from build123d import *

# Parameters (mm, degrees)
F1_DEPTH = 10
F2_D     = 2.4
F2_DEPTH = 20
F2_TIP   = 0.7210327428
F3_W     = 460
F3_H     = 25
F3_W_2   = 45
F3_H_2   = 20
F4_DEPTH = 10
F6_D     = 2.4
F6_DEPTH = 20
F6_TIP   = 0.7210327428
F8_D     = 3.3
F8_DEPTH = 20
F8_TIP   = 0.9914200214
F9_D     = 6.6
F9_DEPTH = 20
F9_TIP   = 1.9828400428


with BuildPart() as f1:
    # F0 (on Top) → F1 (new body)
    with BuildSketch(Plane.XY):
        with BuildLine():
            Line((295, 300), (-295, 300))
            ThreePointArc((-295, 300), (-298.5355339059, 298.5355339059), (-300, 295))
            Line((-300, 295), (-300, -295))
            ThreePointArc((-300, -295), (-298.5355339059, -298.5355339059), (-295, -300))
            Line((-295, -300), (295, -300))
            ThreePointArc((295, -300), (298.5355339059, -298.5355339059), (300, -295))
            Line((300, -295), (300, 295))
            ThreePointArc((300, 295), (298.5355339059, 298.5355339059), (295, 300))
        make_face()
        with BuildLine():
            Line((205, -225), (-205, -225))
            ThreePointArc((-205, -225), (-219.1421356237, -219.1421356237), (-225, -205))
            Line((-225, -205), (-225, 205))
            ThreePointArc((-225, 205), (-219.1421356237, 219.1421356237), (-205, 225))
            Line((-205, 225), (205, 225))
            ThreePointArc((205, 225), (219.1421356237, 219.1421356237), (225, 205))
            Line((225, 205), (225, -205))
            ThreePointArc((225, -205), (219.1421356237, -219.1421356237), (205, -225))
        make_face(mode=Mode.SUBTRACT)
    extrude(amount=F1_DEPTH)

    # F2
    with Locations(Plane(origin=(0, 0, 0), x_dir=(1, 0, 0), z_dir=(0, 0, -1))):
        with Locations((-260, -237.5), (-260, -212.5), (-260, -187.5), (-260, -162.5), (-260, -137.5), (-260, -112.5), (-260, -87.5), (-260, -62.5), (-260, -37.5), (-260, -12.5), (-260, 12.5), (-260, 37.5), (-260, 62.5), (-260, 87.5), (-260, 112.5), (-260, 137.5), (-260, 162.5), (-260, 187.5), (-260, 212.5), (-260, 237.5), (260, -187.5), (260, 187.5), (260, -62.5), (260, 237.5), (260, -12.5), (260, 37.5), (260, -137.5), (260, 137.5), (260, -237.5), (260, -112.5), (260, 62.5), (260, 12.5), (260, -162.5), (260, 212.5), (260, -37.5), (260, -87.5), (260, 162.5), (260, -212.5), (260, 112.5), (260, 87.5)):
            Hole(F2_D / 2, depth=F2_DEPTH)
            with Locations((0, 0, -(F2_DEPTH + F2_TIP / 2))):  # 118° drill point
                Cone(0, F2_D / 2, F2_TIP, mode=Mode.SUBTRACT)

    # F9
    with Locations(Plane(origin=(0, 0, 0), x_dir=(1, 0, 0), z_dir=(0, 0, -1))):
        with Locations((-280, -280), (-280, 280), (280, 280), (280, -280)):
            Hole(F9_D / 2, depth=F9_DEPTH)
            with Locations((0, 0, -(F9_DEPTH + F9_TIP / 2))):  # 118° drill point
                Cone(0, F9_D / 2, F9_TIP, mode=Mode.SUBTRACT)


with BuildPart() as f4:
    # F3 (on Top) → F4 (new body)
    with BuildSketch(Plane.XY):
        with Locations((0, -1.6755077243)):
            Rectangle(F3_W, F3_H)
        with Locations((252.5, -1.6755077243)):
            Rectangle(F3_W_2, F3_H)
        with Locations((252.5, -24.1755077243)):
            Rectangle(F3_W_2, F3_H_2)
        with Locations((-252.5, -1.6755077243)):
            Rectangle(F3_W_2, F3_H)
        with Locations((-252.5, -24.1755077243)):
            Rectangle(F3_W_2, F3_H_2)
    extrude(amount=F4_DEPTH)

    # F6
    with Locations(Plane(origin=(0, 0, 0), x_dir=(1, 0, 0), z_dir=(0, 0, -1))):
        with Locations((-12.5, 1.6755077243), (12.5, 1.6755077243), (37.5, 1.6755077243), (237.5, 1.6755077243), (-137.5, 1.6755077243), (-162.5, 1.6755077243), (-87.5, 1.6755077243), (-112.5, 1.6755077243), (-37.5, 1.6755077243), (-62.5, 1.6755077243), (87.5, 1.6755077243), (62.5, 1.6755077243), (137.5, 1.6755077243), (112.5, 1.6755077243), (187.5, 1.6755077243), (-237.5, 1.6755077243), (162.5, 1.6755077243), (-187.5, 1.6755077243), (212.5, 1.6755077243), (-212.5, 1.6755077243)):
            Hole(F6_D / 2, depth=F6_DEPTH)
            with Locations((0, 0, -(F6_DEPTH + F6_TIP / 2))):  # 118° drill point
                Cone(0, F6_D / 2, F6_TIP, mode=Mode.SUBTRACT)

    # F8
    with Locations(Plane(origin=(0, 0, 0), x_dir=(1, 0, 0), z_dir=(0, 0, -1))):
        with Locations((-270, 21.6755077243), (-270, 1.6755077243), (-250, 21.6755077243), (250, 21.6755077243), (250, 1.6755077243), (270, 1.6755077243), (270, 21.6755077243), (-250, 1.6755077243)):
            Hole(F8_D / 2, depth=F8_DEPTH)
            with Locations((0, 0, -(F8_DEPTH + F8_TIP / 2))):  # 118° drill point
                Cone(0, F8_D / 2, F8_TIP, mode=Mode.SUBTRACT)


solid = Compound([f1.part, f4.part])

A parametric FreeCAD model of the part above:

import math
import FreeCAD as App
import Part
import Sketcher
Q = App.Units.Quantity

doc = App.newDocument("Part")
params = doc.addObject("Spreadsheet::Sheet", "Params")
for row, (alias, value) in enumerate([
    ("sketch1_radius", "5 mm"),
    ("sketch1_radius2", "20 mm"),
    ("sketch1_width", "590 mm"),
    ("sketch1_width2", "410 mm"),
    ("pad1_length", "10 mm"),
    ("sketch2_diameter", "2.4 mm"),
    ("hole_diameter", "2.4 mm"),
    ("hole_depth", "20 mm"),
    ("sketch3_diameter", "6.6 mm"),
    ("hole2_diameter", "6.6 mm"),
    ("hole2_depth", "20 mm"),
    ("sketch4_width", "45 mm"),
    ("sketch4_width2", "550 mm"),
    ("sketch4_height", "20 mm"),
    ("pad2_length", "10 mm"),
    ("sketch5_diameter", "2.4 mm"),
    ("hole3_diameter", "2.4 mm"),
    ("hole3_depth", "20 mm"),
    ("sketch6_diameter", "3.3 mm"),
    ("hole4_diameter", "3.3 mm"),
    ("hole4_depth", "20 mm"),
], start=1):
    params.set(f"A{row}", alias)
    params.set(f"B{row}", "=" + value)
    params.setAlias(f"B{row}", alias)

body = doc.addObject("PartDesign::Body", "Body")

sketch1 = doc.addObject("Sketcher::SketchObject", "Sketch")
body.addObject(sketch1)
sketch1.AttachmentSupport = (doc.XY_Plane, [""])
sketch1.MapMode = "FlatFace"
sketch1.addGeometry(Part.LineSegment(App.Vector(295, 300, 0), App.Vector(-295, 300, 0)), False)
sketch1.addGeometry(Part.ArcOfCircle(Part.Circle(App.Vector(-295, 295, 0), App.Vector(0, 0, 1), 5), math.radians(90), math.radians(180)), False)
sketch1.addGeometry(Part.LineSegment(App.Vector(-300, 295, 0), App.Vector(-300, -295, 0)), False)
sketch1.addGeometry(Part.ArcOfCircle(Part.Circle(App.Vector(-295, -295, 0), App.Vector(0, 0, 1), 5), math.radians(180), math.radians(270)), False)
sketch1.addGeometry(Part.LineSegment(App.Vector(-295, -300, 0), App.Vector(295, -300, 0)), False)
sketch1.addGeometry(Part.ArcOfCircle(Part.Circle(App.Vector(295, -295, 0), App.Vector(0, 0, 1), 5), math.radians(-90), math.radians(0)), False)
sketch1.addGeometry(Part.LineSegment(App.Vector(300, -295, 0), App.Vector(300, 295, 0)), False)
sketch1.addGeometry(Part.ArcOfCircle(Part.Circle(App.Vector(295, 295, 0), App.Vector(0, 0, 1), 5), math.radians(0), math.radians(90)), False)
sketch1.addGeometry(Part.ArcOfCircle(Part.Circle(App.Vector(205, -205, 0), App.Vector(0, 0, 1), 20), math.radians(-90), math.radians(0)), False)
sketch1.addGeometry(Part.LineSegment(App.Vector(205, -225, 0), App.Vector(-205, -225, 0)), False)
sketch1.addGeometry(Part.ArcOfCircle(Part.Circle(App.Vector(-205, -205, 0), App.Vector(0, 0, 1), 20), math.radians(180), math.radians(270)), False)
sketch1.addGeometry(Part.LineSegment(App.Vector(-225, -205, 0), App.Vector(-225, 205, 0)), False)
sketch1.addGeometry(Part.ArcOfCircle(Part.Circle(App.Vector(-205, 205, 0), App.Vector(0, 0, 1), 20), math.radians(90), math.radians(180)), False)
sketch1.addGeometry(Part.LineSegment(App.Vector(-205, 225, 0), App.Vector(205, 225, 0)), False)
sketch1.addGeometry(Part.ArcOfCircle(Part.Circle(App.Vector(205, 205, 0), App.Vector(0, 0, 1), 20), math.radians(0), math.radians(90)), False)
sketch1.addGeometry(Part.LineSegment(App.Vector(225, 205, 0), App.Vector(225, -205, 0)), False)
sketch1.addConstraint(Sketcher.Constraint("Tangent", 0, 2, 1, 1))
sketch1.addConstraint(Sketcher.Constraint("Tangent", 1, 2, 2, 1))
sketch1.addConstraint(Sketcher.Constraint("Tangent", 2, 2, 3, 1))
sketch1.addConstraint(Sketcher.Constraint("Tangent", 3, 2, 4, 1))
sketch1.addConstraint(Sketcher.Constraint("Tangent", 4, 2, 5, 1))
sketch1.addConstraint(Sketcher.Constraint("Tangent", 5, 2, 6, 1))
sketch1.addConstraint(Sketcher.Constraint("Tangent", 6, 2, 7, 1))
sketch1.addConstraint(Sketcher.Constraint("Tangent", 7, 2, 0, 1))
sketch1.addConstraint(Sketcher.Constraint("Tangent", 8, 1, 9, 1))
sketch1.addConstraint(Sketcher.Constraint("Tangent", 9, 2, 10, 2))
sketch1.addConstraint(Sketcher.Constraint("Tangent", 10, 1, 11, 1))
sketch1.addConstraint(Sketcher.Constraint("Tangent", 11, 2, 12, 2))
sketch1.addConstraint(Sketcher.Constraint("Tangent", 12, 1, 13, 1))
sketch1.addConstraint(Sketcher.Constraint("Tangent", 13, 2, 14, 2))
sketch1.addConstraint(Sketcher.Constraint("Tangent", 14, 1, 15, 1))
sketch1.addConstraint(Sketcher.Constraint("Tangent", 15, 2, 8, 2))
sketch1.addConstraint(Sketcher.Constraint("Horizontal", 0))
sketch1.addConstraint(Sketcher.Constraint("Vertical", 2))
sketch1.addConstraint(Sketcher.Constraint("Horizontal", 4))
sketch1.addConstraint(Sketcher.Constraint("Vertical", 6))
sketch1.addConstraint(Sketcher.Constraint("Horizontal", 9))
sketch1.addConstraint(Sketcher.Constraint("Vertical", 11))
sketch1.addConstraint(Sketcher.Constraint("Horizontal", 13))
sketch1.addConstraint(Sketcher.Constraint("Vertical", 15))
sketch1.addConstraint(Sketcher.Constraint("Equal", 1, 3))
sketch1.addConstraint(Sketcher.Constraint("Equal", 3, 5))
sketch1.addConstraint(Sketcher.Constraint("Equal", 5, 7))
sketch1.addConstraint(Sketcher.Constraint("Equal", 8, 10))
sketch1.addConstraint(Sketcher.Constraint("Equal", 10, 12))
sketch1.addConstraint(Sketcher.Constraint("Equal", 12, 14))
sketch1.addConstraint(Sketcher.Constraint("Symmetric", 1, 3, 5, 3, -1, 1))
sketch1.addConstraint(Sketcher.Constraint("Symmetric", 8, 3, 12, 3, -1, 1))
sketch1.addConstraint(Sketcher.Constraint("Equal", 4, 2))
sketch1.addConstraint(Sketcher.Constraint("Equal", 13, 11))
sketch1.addConstraint(Sketcher.Constraint("Radius", 1, Q("5 mm")))
sketch1.addConstraint(Sketcher.Constraint("Radius", 8, Q("20 mm")))
sketch1.addConstraint(Sketcher.Constraint("DistanceX", 0, 2, 0, 1, Q("590 mm")))
sketch1.addConstraint(Sketcher.Constraint("DistanceX", 9, 2, 9, 1, Q("410 mm")))
sketch1.setExpression("Constraints[34]", "Params.sketch1_radius")
sketch1.setExpression("Constraints[35]", "Params.sketch1_radius2")
sketch1.setExpression("Constraints[36]", "Params.sketch1_width")
sketch1.setExpression("Constraints[37]", "Params.sketch1_width2")
pad1 = doc.addObject("PartDesign::Pad", "Pad")
body.addObject(pad1)
pad1.Profile = sketch1
pad1.setExpression("Length", "Params.pad1_length")

sketch2 = doc.addObject("Sketcher::SketchObject", "Sketch001")
body.addObject(sketch2)
sketch2.AttachmentSupport = (doc.XY_Plane, [""])
sketch2.MapMode = "FlatFace"
sketch2.addGeometry(Part.Circle(App.Vector(-260, 237.5, 0), App.Vector(0, 0, 1), 1.2), False)
sketch2.addGeometry(Part.Circle(App.Vector(-260, 212.5, 0), App.Vector(0, 0, 1), 1.2), False)
sketch2.addGeometry(Part.Circle(App.Vector(-260, 187.5, 0), App.Vector(0, 0, 1), 1.2), False)
sketch2.addGeometry(Part.Circle(App.Vector(-260, 162.5, 0), App.Vector(0, 0, 1), 1.2), False)
sketch2.addGeometry(Part.Circle(App.Vector(-260, 137.5, 0), App.Vector(0, 0, 1), 1.2), False)
sketch2.addGeometry(Part.Circle(App.Vector(-260, 112.5, 0), App.Vector(0, 0, 1), 1.2), False)
sketch2.addGeometry(Part.Circle(App.Vector(-260, 87.5, 0), App.Vector(0, 0, 1), 1.2), False)
sketch2.addGeometry(Part.Circle(App.Vector(-260, 62.5, 0), App.Vector(0, 0, 1), 1.2), False)
sketch2.addGeometry(Part.Circle(App.Vector(-260, 37.5, 0), App.Vector(0, 0, 1), 1.2), False)
sketch2.addGeometry(Part.Circle(App.Vector(-260, 12.5, 0), App.Vector(0, 0, 1), 1.2), False)
sketch2.addGeometry(Part.Circle(App.Vector(-260, -12.5, 0), App.Vector(0, 0, 1), 1.2), False)
sketch2.addGeometry(Part.Circle(App.Vector(-260, -37.5, 0), App.Vector(0, 0, 1), 1.2), False)
sketch2.addGeometry(Part.Circle(App.Vector(-260, -62.5, 0), App.Vector(0, 0, 1), 1.2), False)
sketch2.addGeometry(Part.Circle(App.Vector(-260, -87.5, 0), App.Vector(0, 0, 1), 1.2), False)
sketch2.addGeometry(Part.Circle(App.Vector(-260, -112.5, 0), App.Vector(0, 0, 1), 1.2), False)
sketch2.addGeometry(Part.Circle(App.Vector(-260, -137.5, 0), App.Vector(0, 0, 1), 1.2), False)
sketch2.addGeometry(Part.Circle(App.Vector(-260, -162.5, 0), App.Vector(0, 0, 1), 1.2), False)
sketch2.addGeometry(Part.Circle(App.Vector(-260, -187.5, 0), App.Vector(0, 0, 1), 1.2), False)
sketch2.addGeometry(Part.Circle(App.Vector(-260, -212.5, 0), App.Vector(0, 0, 1), 1.2), False)
sketch2.addGeometry(Part.Circle(App.Vector(-260, -237.5, 0), App.Vector(0, 0, 1), 1.2), False)
sketch2.addGeometry(Part.Circle(App.Vector(260, 187.5, 0), App.Vector(0, 0, 1), 1.2), False)
sketch2.addGeometry(Part.Circle(App.Vector(260, -187.5, 0), App.Vector(0, 0, 1), 1.2), False)
sketch2.addGeometry(Part.Circle(App.Vector(260, 62.5, 0), App.Vector(0, 0, 1), 1.2), False)
sketch2.addGeometry(Part.Circle(App.Vector(260, -237.5, 0), App.Vector(0, 0, 1), 1.2), False)
sketch2.addGeometry(Part.Circle(App.Vector(260, 12.5, 0), App.Vector(0, 0, 1), 1.2), False)
sketch2.addGeometry(Part.Circle(App.Vector(260, -37.5, 0), App.Vector(0, 0, 1), 1.2), False)
sketch2.addGeometry(Part.Circle(App.Vector(260, 137.5, 0), App.Vector(0, 0, 1), 1.2), False)
sketch2.addGeometry(Part.Circle(App.Vector(260, -137.5, 0), App.Vector(0, 0, 1), 1.2), False)
sketch2.addGeometry(Part.Circle(App.Vector(260, 237.5, 0), App.Vector(0, 0, 1), 1.2), False)
sketch2.addGeometry(Part.Circle(App.Vector(260, 112.5, 0), App.Vector(0, 0, 1), 1.2), False)
sketch2.addGeometry(Part.Circle(App.Vector(260, -62.5, 0), App.Vector(0, 0, 1), 1.2), False)
sketch2.addGeometry(Part.Circle(App.Vector(260, -12.5, 0), App.Vector(0, 0, 1), 1.2), False)
sketch2.addGeometry(Part.Circle(App.Vector(260, 162.5, 0), App.Vector(0, 0, 1), 1.2), False)
sketch2.addGeometry(Part.Circle(App.Vector(260, -212.5, 0), App.Vector(0, 0, 1), 1.2), False)
sketch2.addGeometry(Part.Circle(App.Vector(260, 37.5, 0), App.Vector(0, 0, 1), 1.2), False)
sketch2.addGeometry(Part.Circle(App.Vector(260, 87.5, 0), App.Vector(0, 0, 1), 1.2), False)
sketch2.addGeometry(Part.Circle(App.Vector(260, -162.5, 0), App.Vector(0, 0, 1), 1.2), False)
sketch2.addGeometry(Part.Circle(App.Vector(260, 212.5, 0), App.Vector(0, 0, 1), 1.2), False)
sketch2.addGeometry(Part.Circle(App.Vector(260, -112.5, 0), App.Vector(0, 0, 1), 1.2), False)
sketch2.addGeometry(Part.Circle(App.Vector(260, -87.5, 0), App.Vector(0, 0, 1), 1.2), False)
sketch2.addConstraint(Sketcher.Constraint("Equal", 0, 1))
sketch2.addConstraint(Sketcher.Constraint("Equal", 1, 2))
sketch2.addConstraint(Sketcher.Constraint("Equal", 2, 3))
sketch2.addConstraint(Sketcher.Constraint("Equal", 3, 4))
sketch2.addConstraint(Sketcher.Constraint("Equal", 4, 5))
sketch2.addConstraint(Sketcher.Constraint("Equal", 5, 6))
sketch2.addConstraint(Sketcher.Constraint("Equal", 6, 7))
sketch2.addConstraint(Sketcher.Constraint("Equal", 7, 8))
sketch2.addConstraint(Sketcher.Constraint("Equal", 8, 9))
sketch2.addConstraint(Sketcher.Constraint("Equal", 9, 10))
sketch2.addConstraint(Sketcher.Constraint("Equal", 10, 11))
sketch2.addConstraint(Sketcher.Constraint("Equal", 11, 12))
sketch2.addConstraint(Sketcher.Constraint("Equal", 12, 13))
sketch2.addConstraint(Sketcher.Constraint("Equal", 13, 14))
sketch2.addConstraint(Sketcher.Constraint("Equal", 14, 15))
sketch2.addConstraint(Sketcher.Constraint("Equal", 15, 16))
sketch2.addConstraint(Sketcher.Constraint("Equal", 16, 17))
sketch2.addConstraint(Sketcher.Constraint("Equal", 17, 18))
sketch2.addConstraint(Sketcher.Constraint("Equal", 18, 19))
sketch2.addConstraint(Sketcher.Constraint("Equal", 19, 20))
sketch2.addConstraint(Sketcher.Constraint("Equal", 20, 21))
sketch2.addConstraint(Sketcher.Constraint("Equal", 21, 22))
sketch2.addConstraint(Sketcher.Constraint("Equal", 22, 23))
sketch2.addConstraint(Sketcher.Constraint("Equal", 23, 24))
sketch2.addConstraint(Sketcher.Constraint("Equal", 24, 25))
sketch2.addConstraint(Sketcher.Constraint("Equal", 25, 26))
sketch2.addConstraint(Sketcher.Constraint("Equal", 26, 27))
sketch2.addConstraint(Sketcher.Constraint("Equal", 27, 28))
sketch2.addConstraint(Sketcher.Constraint("Equal", 28, 29))
sketch2.addConstraint(Sketcher.Constraint("Equal", 29, 30))
sketch2.addConstraint(Sketcher.Constraint("Equal", 30, 31))
sketch2.addConstraint(Sketcher.Constraint("Equal", 31, 32))
sketch2.addConstraint(Sketcher.Constraint("Equal", 32, 33))
sketch2.addConstraint(Sketcher.Constraint("Equal", 33, 34))
sketch2.addConstraint(Sketcher.Constraint("Equal", 34, 35))
sketch2.addConstraint(Sketcher.Constraint("Equal", 35, 36))
sketch2.addConstraint(Sketcher.Constraint("Equal", 36, 37))
sketch2.addConstraint(Sketcher.Constraint("Equal", 37, 38))
sketch2.addConstraint(Sketcher.Constraint("Equal", 38, 39))
sketch2.addConstraint(Sketcher.Constraint("Symmetric", 17, 3, 20, 3, -1, 1))
sketch2.addConstraint(Sketcher.Constraint("Symmetric", 2, 3, 21, 3, -1, 1))
sketch2.addConstraint(Sketcher.Constraint("Symmetric", 12, 3, 22, 3, -1, 1))
sketch2.addConstraint(Sketcher.Constraint("Symmetric", 0, 3, 23, 3, -1, 1))
sketch2.addConstraint(Sketcher.Constraint("Symmetric", 10, 3, 24, 3, -1, 1))
sketch2.addConstraint(Sketcher.Constraint("Symmetric", 8, 3, 25, 3, -1, 1))
sketch2.addConstraint(Sketcher.Constraint("Symmetric", 15, 3, 26, 3, -1, 1))
sketch2.addConstraint(Sketcher.Constraint("Symmetric", 4, 3, 27, 3, -1, 1))
sketch2.addConstraint(Sketcher.Constraint("Symmetric", 19, 3, 28, 3, -1, 1))
sketch2.addConstraint(Sketcher.Constraint("Symmetric", 14, 3, 29, 3, -1, 1))
sketch2.addConstraint(Sketcher.Constraint("Symmetric", 7, 3, 30, 3, -1, 1))
sketch2.addConstraint(Sketcher.Constraint("Symmetric", 9, 3, 31, 3, -1, 1))
sketch2.addConstraint(Sketcher.Constraint("Symmetric", 16, 3, 32, 3, -1, 1))
sketch2.addConstraint(Sketcher.Constraint("Symmetric", 1, 3, 33, 3, -1, 1))
sketch2.addConstraint(Sketcher.Constraint("Symmetric", 11, 3, 34, 3, -1, 1))
sketch2.addConstraint(Sketcher.Constraint("Symmetric", 13, 3, 35, 3, -1, 1))
sketch2.addConstraint(Sketcher.Constraint("Symmetric", 3, 3, 36, 3, -1, 1))
sketch2.addConstraint(Sketcher.Constraint("Symmetric", 18, 3, 37, 3, -1, 1))
sketch2.addConstraint(Sketcher.Constraint("Symmetric", 5, 3, 38, 3, -1, 1))
sketch2.addConstraint(Sketcher.Constraint("Symmetric", 6, 3, 39, 3, -1, 1))
sketch2.addConstraint(Sketcher.Constraint("Symmetric", 2, 3, 20, 3, -2))
sketch2.addConstraint(Sketcher.Constraint("Symmetric", 7, 3, 22, 3, -2))
sketch2.addConstraint(Sketcher.Constraint("Symmetric", 19, 3, 23, 3, -2))
sketch2.addConstraint(Sketcher.Constraint("Symmetric", 9, 3, 24, 3, -2))
sketch2.addConstraint(Sketcher.Constraint("Symmetric", 11, 3, 25, 3, -2))
sketch2.addConstraint(Sketcher.Constraint("Symmetric", 4, 3, 26, 3, -2))
sketch2.addConstraint(Sketcher.Constraint("Symmetric", 5, 3, 29, 3, -2))
sketch2.addConstraint(Sketcher.Constraint("Symmetric", 3, 3, 32, 3, -2))
sketch2.addConstraint(Sketcher.Constraint("Symmetric", 18, 3, 33, 3, -2))
sketch2.addConstraint(Sketcher.Constraint("Symmetric", 6, 3, 35, 3, -2))
sketch2.addConstraint(Sketcher.Constraint("Vertical", 0, 3, 1, 3))
sketch2.addConstraint(Sketcher.Constraint("Vertical", 1, 3, 2, 3))
sketch2.addConstraint(Sketcher.Constraint("Vertical", 2, 3, 3, 3))
sketch2.addConstraint(Sketcher.Constraint("Vertical", 3, 3, 4, 3))
sketch2.addConstraint(Sketcher.Constraint("Vertical", 4, 3, 5, 3))
sketch2.addConstraint(Sketcher.Constraint("Vertical", 5, 3, 6, 3))
sketch2.addConstraint(Sketcher.Constraint("Vertical", 6, 3, 7, 3))
sketch2.addConstraint(Sketcher.Constraint("Vertical", 7, 3, 8, 3))
sketch2.addConstraint(Sketcher.Constraint("Vertical", 8, 3, 9, 3))
sketch2.addConstraint(Sketcher.Constraint("Diameter", 0, Q("2.4 mm")))
sketch2.addConstraint(Sketcher.Constraint("DistanceX", 0, 3, -1, 1, Q("260 mm")))
sketch2.addConstraint(Sketcher.Constraint("DistanceY", 1, 3, 0, 3, Q("25 mm")))
sketch2.addConstraint(Sketcher.Constraint("DistanceY", 2, 3, 1, 3, Q("25 mm")))
sketch2.addConstraint(Sketcher.Constraint("DistanceY", 3, 3, 2, 3, Q("25 mm")))
sketch2.addConstraint(Sketcher.Constraint("DistanceY", 4, 3, 3, 3, Q("25 mm")))
sketch2.addConstraint(Sketcher.Constraint("DistanceY", 5, 3, 4, 3, Q("25 mm")))
sketch2.addConstraint(Sketcher.Constraint("DistanceY", 6, 3, 5, 3, Q("25 mm")))
sketch2.addConstraint(Sketcher.Constraint("DistanceY", 7, 3, 6, 3, Q("25 mm")))
sketch2.addConstraint(Sketcher.Constraint("DistanceY", 8, 3, 7, 3, Q("25 mm")))
sketch2.addConstraint(Sketcher.Constraint("DistanceY", 9, 3, 8, 3, Q("25 mm")))
sketch2.addConstraint(Sketcher.Constraint("DistanceY", 10, 3, 9, 3, Q("25 mm")))
sketch2.setExpression("Constraints[78]", "Params.sketch2_diameter")
doc.recompute()
hole = doc.addObject("PartDesign::Hole", "Hole")
body.addObject(hole)
hole.Profile = sketch2
hole.ThreadType = "None"
hole.setExpression("Diameter", "Params.hole_diameter")
hole.DepthType = "Dimension"
hole.setExpression("Depth", "Params.hole_depth")
hole.DrillPoint = "Angled"
hole.DrillPointAngle = 118
hole.Reversed = True

sketch3 = doc.addObject("Sketcher::SketchObject", "Sketch002")
body.addObject(sketch3)
sketch3.AttachmentSupport = (doc.XY_Plane, [""])
sketch3.MapMode = "FlatFace"
sketch3.addGeometry(Part.Circle(App.Vector(-280, 280, 0), App.Vector(0, 0, 1), 3.3), False)
sketch3.addGeometry(Part.Circle(App.Vector(-280, -280, 0), App.Vector(0, 0, 1), 3.3), False)
sketch3.addGeometry(Part.Circle(App.Vector(280, -280, 0), App.Vector(0, 0, 1), 3.3), False)
sketch3.addGeometry(Part.Circle(App.Vector(280, 280, 0), App.Vector(0, 0, 1), 3.3), False)
sketch3.addConstraint(Sketcher.Constraint("Equal", 0, 1))
sketch3.addConstraint(Sketcher.Constraint("Equal", 1, 2))
sketch3.addConstraint(Sketcher.Constraint("Equal", 2, 3))
sketch3.addConstraint(Sketcher.Constraint("Symmetric", 0, 3, 2, 3, -1, 1))
sketch3.addConstraint(Sketcher.Constraint("Symmetric", 1, 3, 3, 3, -1, 1))
sketch3.addConstraint(Sketcher.Constraint("Symmetric", 1, 3, 2, 3, -2))
sketch3.addConstraint(Sketcher.Constraint("Diameter", 0, Q("6.6 mm")))
sketch3.addConstraint(Sketcher.Constraint("DistanceX", 0, 3, -1, 1, Q("280 mm")))
sketch3.addConstraint(Sketcher.Constraint("DistanceY", -1, 1, 0, 3, Q("280 mm")))
sketch3.setExpression("Constraints[6]", "Params.sketch3_diameter")
doc.recompute()
hole2 = doc.addObject("PartDesign::Hole", "Hole001")
body.addObject(hole2)
hole2.Profile = sketch3
hole2.ThreadType = "None"
hole2.setExpression("Diameter", "Params.hole2_diameter")
hole2.DepthType = "Dimension"
hole2.setExpression("Depth", "Params.hole2_depth")
hole2.DrillPoint = "Angled"
hole2.DrillPointAngle = 118
hole2.Reversed = True
body2 = doc.addObject("PartDesign::Body", "Body001")

sketch4 = doc.addObject("Sketcher::SketchObject", "Sketch003")
body2.addObject(sketch4)
sketch4.AttachmentSupport = (doc.getObject("XY_Plane001"), [""])
sketch4.MapMode = "FlatFace"
sketch4.addGeometry(Part.LineSegment(App.Vector(230, -14, 0), App.Vector(230, -34, 0)), False)
sketch4.addGeometry(Part.LineSegment(App.Vector(230, -34, 0), App.Vector(275, -34, 0)), False)
sketch4.addGeometry(Part.LineSegment(App.Vector(275, -34, 0), App.Vector(275, 11, 0)), False)
sketch4.addGeometry(Part.LineSegment(App.Vector(275, 11, 0), App.Vector(-275, 11, 0)), False)
sketch4.addGeometry(Part.LineSegment(App.Vector(-275, 11, 0), App.Vector(-275, -34, 0)), False)
sketch4.addGeometry(Part.LineSegment(App.Vector(-275, -34, 0), App.Vector(-230, -34, 0)), False)
sketch4.addGeometry(Part.LineSegment(App.Vector(-230, -34, 0), App.Vector(-230, -14, 0)), False)
sketch4.addGeometry(Part.LineSegment(App.Vector(-230, -14, 0), App.Vector(230, -14, 0)), False)
sketch4.addConstraint(Sketcher.Constraint("Coincident", 0, 2, 1, 1))
sketch4.addConstraint(Sketcher.Constraint("Coincident", 1, 2, 2, 1))
sketch4.addConstraint(Sketcher.Constraint("Coincident", 2, 2, 3, 1))
sketch4.addConstraint(Sketcher.Constraint("Coincident", 3, 2, 4, 1))
sketch4.addConstraint(Sketcher.Constraint("Coincident", 4, 2, 5, 1))
sketch4.addConstraint(Sketcher.Constraint("Coincident", 5, 2, 6, 1))
sketch4.addConstraint(Sketcher.Constraint("Coincident", 6, 2, 7, 1))
sketch4.addConstraint(Sketcher.Constraint("Coincident", 7, 2, 0, 1))
sketch4.addConstraint(Sketcher.Constraint("Vertical", 0))
sketch4.addConstraint(Sketcher.Constraint("Horizontal", 1))
sketch4.addConstraint(Sketcher.Constraint("Vertical", 2))
sketch4.addConstraint(Sketcher.Constraint("Horizontal", 3))
sketch4.addConstraint(Sketcher.Constraint("Vertical", 4))
sketch4.addConstraint(Sketcher.Constraint("Horizontal", 5))
sketch4.addConstraint(Sketcher.Constraint("Vertical", 6))
sketch4.addConstraint(Sketcher.Constraint("Horizontal", 7))
sketch4.addConstraint(Sketcher.Constraint("Symmetric", 1, 2, 4, 2, -2))
sketch4.addConstraint(Sketcher.Constraint("Equal", 1, 5))
sketch4.addConstraint(Sketcher.Constraint("Equal", 5, 2))
sketch4.addConstraint(Sketcher.Constraint("DistanceX", 1, 1, 1, 2, Q("45 mm")))
sketch4.addConstraint(Sketcher.Constraint("DistanceX", 3, 2, 3, 1, Q("550 mm")))
sketch4.addConstraint(Sketcher.Constraint("DistanceY", 0, 2, 0, 1, Q("20 mm")))
sketch4.addConstraint(Sketcher.Constraint("DistanceY", 0, 2, -1, 1, Q("34.175508 mm")))
sketch4.setExpression("Constraints[19]", "Params.sketch4_width")
sketch4.setExpression("Constraints[20]", "Params.sketch4_width2")
sketch4.setExpression("Constraints[21]", "Params.sketch4_height")
pad2 = doc.addObject("PartDesign::Pad", "Pad001")
body2.addObject(pad2)
pad2.Profile = sketch4
pad2.setExpression("Length", "Params.pad2_length")

sketch5 = doc.addObject("Sketcher::SketchObject", "Sketch004")
body2.addObject(sketch5)
sketch5.AttachmentSupport = (doc.getObject("XY_Plane001"), [""])
sketch5.MapMode = "FlatFace"
sketch5.addGeometry(Part.Circle(App.Vector(-12.5, -1.7, 0), App.Vector(0, 0, 1), 1.2), False)
sketch5.addGeometry(Part.Circle(App.Vector(12.5, -1.7, 0), App.Vector(0, 0, 1), 1.2), False)
sketch5.addGeometry(Part.Circle(App.Vector(37.5, -1.7, 0), App.Vector(0, 0, 1), 1.2), False)
sketch5.addGeometry(Part.Circle(App.Vector(237.5, -1.7, 0), App.Vector(0, 0, 1), 1.2), False)
sketch5.addGeometry(Part.Circle(App.Vector(-137.5, -1.7, 0), App.Vector(0, 0, 1), 1.2), False)
sketch5.addGeometry(Part.Circle(App.Vector(-162.5, -1.7, 0), App.Vector(0, 0, 1), 1.2), False)
sketch5.addGeometry(Part.Circle(App.Vector(-87.5, -1.7, 0), App.Vector(0, 0, 1), 1.2), False)
sketch5.addGeometry(Part.Circle(App.Vector(-112.5, -1.7, 0), App.Vector(0, 0, 1), 1.2), False)
sketch5.addGeometry(Part.Circle(App.Vector(-37.5, -1.7, 0), App.Vector(0, 0, 1), 1.2), False)
sketch5.addGeometry(Part.Circle(App.Vector(-62.5, -1.7, 0), App.Vector(0, 0, 1), 1.2), False)
sketch5.addGeometry(Part.Circle(App.Vector(87.5, -1.7, 0), App.Vector(0, 0, 1), 1.2), False)
sketch5.addGeometry(Part.Circle(App.Vector(62.5, -1.7, 0), App.Vector(0, 0, 1), 1.2), False)
sketch5.addGeometry(Part.Circle(App.Vector(137.5, -1.7, 0), App.Vector(0, 0, 1), 1.2), False)
sketch5.addGeometry(Part.Circle(App.Vector(112.5, -1.7, 0), App.Vector(0, 0, 1), 1.2), False)
sketch5.addGeometry(Part.Circle(App.Vector(187.5, -1.7, 0), App.Vector(0, 0, 1), 1.2), False)
sketch5.addGeometry(Part.Circle(App.Vector(-237.5, -1.7, 0), App.Vector(0, 0, 1), 1.2), False)
sketch5.addGeometry(Part.Circle(App.Vector(162.5, -1.7, 0), App.Vector(0, 0, 1), 1.2), False)
sketch5.addGeometry(Part.Circle(App.Vector(-187.5, -1.7, 0), App.Vector(0, 0, 1), 1.2), False)
sketch5.addGeometry(Part.Circle(App.Vector(212.5, -1.7, 0), App.Vector(0, 0, 1), 1.2), False)
sketch5.addGeometry(Part.Circle(App.Vector(-212.5, -1.7, 0), App.Vector(0, 0, 1), 1.2), False)
sketch5.addConstraint(Sketcher.Constraint("Equal", 0, 1))
sketch5.addConstraint(Sketcher.Constraint("Equal", 1, 2))
sketch5.addConstraint(Sketcher.Constraint("Equal", 2, 3))
sketch5.addConstraint(Sketcher.Constraint("Equal", 3, 4))
sketch5.addConstraint(Sketcher.Constraint("Equal", 4, 5))
sketch5.addConstraint(Sketcher.Constraint("Equal", 5, 6))
sketch5.addConstraint(Sketcher.Constraint("Equal", 6, 7))
sketch5.addConstraint(Sketcher.Constraint("Equal", 7, 8))
sketch5.addConstraint(Sketcher.Constraint("Equal", 8, 9))
sketch5.addConstraint(Sketcher.Constraint("Equal", 9, 10))
sketch5.addConstraint(Sketcher.Constraint("Equal", 10, 11))
sketch5.addConstraint(Sketcher.Constraint("Equal", 11, 12))
sketch5.addConstraint(Sketcher.Constraint("Equal", 12, 13))
sketch5.addConstraint(Sketcher.Constraint("Equal", 13, 14))
sketch5.addConstraint(Sketcher.Constraint("Equal", 14, 15))
sketch5.addConstraint(Sketcher.Constraint("Equal", 15, 16))
sketch5.addConstraint(Sketcher.Constraint("Equal", 16, 17))
sketch5.addConstraint(Sketcher.Constraint("Equal", 17, 18))
sketch5.addConstraint(Sketcher.Constraint("Equal", 18, 19))
sketch5.addConstraint(Sketcher.Constraint("Symmetric", 0, 3, 1, 3, -2))
sketch5.addConstraint(Sketcher.Constraint("Symmetric", 2, 3, 8, 3, -2))
sketch5.addConstraint(Sketcher.Constraint("Symmetric", 6, 3, 10, 3, -2))
sketch5.addConstraint(Sketcher.Constraint("Symmetric", 9, 3, 11, 3, -2))
sketch5.addConstraint(Sketcher.Constraint("Symmetric", 4, 3, 12, 3, -2))
sketch5.addConstraint(Sketcher.Constraint("Symmetric", 7, 3, 13, 3, -2))
sketch5.addConstraint(Sketcher.Constraint("Symmetric", 3, 3, 15, 3, -2))
sketch5.addConstraint(Sketcher.Constraint("Symmetric", 5, 3, 16, 3, -2))
sketch5.addConstraint(Sketcher.Constraint("Symmetric", 14, 3, 17, 3, -2))
sketch5.addConstraint(Sketcher.Constraint("Symmetric", 18, 3, 19, 3, -2))
sketch5.addConstraint(Sketcher.Constraint("Horizontal", 1, 3, 2, 3))
sketch5.addConstraint(Sketcher.Constraint("Horizontal", 2, 3, 3, 3))
sketch5.addConstraint(Sketcher.Constraint("Horizontal", 3, 3, 4, 3))
sketch5.addConstraint(Sketcher.Constraint("Horizontal", 4, 3, 5, 3))
sketch5.addConstraint(Sketcher.Constraint("Horizontal", 5, 3, 6, 3))
sketch5.addConstraint(Sketcher.Constraint("Horizontal", 6, 3, 7, 3))
sketch5.addConstraint(Sketcher.Constraint("Horizontal", 8, 3, 9, 3))
sketch5.addConstraint(Sketcher.Constraint("Horizontal", 13, 3, 14, 3))
sketch5.addConstraint(Sketcher.Constraint("Horizontal", 17, 3, 18, 3))
sketch5.addConstraint(Sketcher.Constraint("Diameter", 0, Q("2.4 mm")))
sketch5.addConstraint(Sketcher.Constraint("DistanceX", 0, 3, 1, 3, Q("25 mm")))
sketch5.addConstraint(Sketcher.Constraint("DistanceX", 1, 3, 2, 3, Q("25 mm")))
sketch5.addConstraint(Sketcher.Constraint("DistanceX", 2, 3, 3, 3, Q("200 mm")))
sketch5.addConstraint(Sketcher.Constraint("DistanceX", 4, 3, 0, 3, Q("125 mm")))
sketch5.addConstraint(Sketcher.Constraint("DistanceX", 5, 3, 4, 3, Q("25 mm")))
sketch5.addConstraint(Sketcher.Constraint("DistanceX", 4, 3, 6, 3, Q("50 mm")))
sketch5.addConstraint(Sketcher.Constraint("DistanceX", 4, 3, 7, 3, Q("25 mm")))
sketch5.addConstraint(Sketcher.Constraint("DistanceX", 6, 3, 9, 3, Q("25 mm")))
sketch5.addConstraint(Sketcher.Constraint("DistanceX", 14, 3, 3, 3, Q("50 mm")))
sketch5.addConstraint(Sketcher.Constraint("DistanceX", 18, 3, 3, 3, Q("25 mm")))
sketch5.addConstraint(Sketcher.Constraint("DistanceY", 0, 3, -1, 1, Q("1.675508 mm")))
sketch5.setExpression("Constraints[38]", "Params.sketch5_diameter")
doc.recompute()
hole3 = doc.addObject("PartDesign::Hole", "Hole002")
body2.addObject(hole3)
hole3.Profile = sketch5
hole3.ThreadType = "None"
hole3.setExpression("Diameter", "Params.hole3_diameter")
hole3.DepthType = "Dimension"
hole3.setExpression("Depth", "Params.hole3_depth")
hole3.DrillPoint = "Angled"
hole3.DrillPointAngle = 118
hole3.Reversed = True

sketch6 = doc.addObject("Sketcher::SketchObject", "Sketch005")
body2.addObject(sketch6)
sketch6.AttachmentSupport = (doc.getObject("XY_Plane001"), [""])
sketch6.MapMode = "FlatFace"
sketch6.addGeometry(Part.Circle(App.Vector(-270, -21.7, 0), App.Vector(0, 0, 1), 1.6), False)
sketch6.addGeometry(Part.Circle(App.Vector(-270, -1.7, 0), App.Vector(0, 0, 1), 1.6), False)
sketch6.addGeometry(Part.Circle(App.Vector(-250, -21.7, 0), App.Vector(0, 0, 1), 1.6), False)
sketch6.addGeometry(Part.Circle(App.Vector(250, -21.7, 0), App.Vector(0, 0, 1), 1.6), False)
sketch6.addGeometry(Part.Circle(App.Vector(250, -1.7, 0), App.Vector(0, 0, 1), 1.6), False)
sketch6.addGeometry(Part.Circle(App.Vector(270, -1.7, 0), App.Vector(0, 0, 1), 1.6), False)
sketch6.addGeometry(Part.Circle(App.Vector(270, -21.7, 0), App.Vector(0, 0, 1), 1.6), False)
sketch6.addGeometry(Part.Circle(App.Vector(-250, -1.7, 0), App.Vector(0, 0, 1), 1.6), False)
sketch6.addConstraint(Sketcher.Constraint("Equal", 0, 1))
sketch6.addConstraint(Sketcher.Constraint("Equal", 1, 2))
sketch6.addConstraint(Sketcher.Constraint("Equal", 2, 3))
sketch6.addConstraint(Sketcher.Constraint("Equal", 3, 4))
sketch6.addConstraint(Sketcher.Constraint("Equal", 4, 5))
sketch6.addConstraint(Sketcher.Constraint("Equal", 5, 6))
sketch6.addConstraint(Sketcher.Constraint("Equal", 6, 7))
sketch6.addConstraint(Sketcher.Constraint("Symmetric", 2, 3, 3, 3, -2))
sketch6.addConstraint(Sketcher.Constraint("Symmetric", 1, 3, 5, 3, -2))
sketch6.addConstraint(Sketcher.Constraint("Symmetric", 0, 3, 6, 3, -2))
sketch6.addConstraint(Sketcher.Constraint("Symmetric", 4, 3, 7, 3, -2))
sketch6.addConstraint(Sketcher.Constraint("Horizontal", 0, 3, 2, 3))
sketch6.addConstraint(Sketcher.Constraint("Horizontal", 1, 3, 4, 3))
sketch6.addConstraint(Sketcher.Constraint("Vertical", 0, 3, 1, 3))
sketch6.addConstraint(Sketcher.Constraint("Vertical", 3, 3, 4, 3))
sketch6.addConstraint(Sketcher.Constraint("Diameter", 0, Q("3.3 mm")))
sketch6.addConstraint(Sketcher.Constraint("DistanceX", 0, 3, -1, 1, Q("270 mm")))
sketch6.addConstraint(Sketcher.Constraint("DistanceX", 2, 3, -1, 1, Q("250 mm")))
sketch6.addConstraint(Sketcher.Constraint("DistanceY", 0, 3, 1, 3, Q("20 mm")))
sketch6.addConstraint(Sketcher.Constraint("DistanceY", 0, 3, -1, 1, Q("21.675508 mm")))
sketch6.setExpression("Constraints[15]", "Params.sketch6_diameter")
doc.recompute()
hole4 = doc.addObject("PartDesign::Hole", "Hole003")
body2.addObject(hole4)
hole4.Profile = sketch6
hole4.ThreadType = "None"
hole4.setExpression("Diameter", "Params.hole4_diameter")
hole4.DepthType = "Dimension"
hole4.setExpression("Depth", "Params.hole4_depth")
hole4.DrillPoint = "Angled"
hole4.DrillPointAngle = 118
hole4.Reversed = True

doc.recompute()
